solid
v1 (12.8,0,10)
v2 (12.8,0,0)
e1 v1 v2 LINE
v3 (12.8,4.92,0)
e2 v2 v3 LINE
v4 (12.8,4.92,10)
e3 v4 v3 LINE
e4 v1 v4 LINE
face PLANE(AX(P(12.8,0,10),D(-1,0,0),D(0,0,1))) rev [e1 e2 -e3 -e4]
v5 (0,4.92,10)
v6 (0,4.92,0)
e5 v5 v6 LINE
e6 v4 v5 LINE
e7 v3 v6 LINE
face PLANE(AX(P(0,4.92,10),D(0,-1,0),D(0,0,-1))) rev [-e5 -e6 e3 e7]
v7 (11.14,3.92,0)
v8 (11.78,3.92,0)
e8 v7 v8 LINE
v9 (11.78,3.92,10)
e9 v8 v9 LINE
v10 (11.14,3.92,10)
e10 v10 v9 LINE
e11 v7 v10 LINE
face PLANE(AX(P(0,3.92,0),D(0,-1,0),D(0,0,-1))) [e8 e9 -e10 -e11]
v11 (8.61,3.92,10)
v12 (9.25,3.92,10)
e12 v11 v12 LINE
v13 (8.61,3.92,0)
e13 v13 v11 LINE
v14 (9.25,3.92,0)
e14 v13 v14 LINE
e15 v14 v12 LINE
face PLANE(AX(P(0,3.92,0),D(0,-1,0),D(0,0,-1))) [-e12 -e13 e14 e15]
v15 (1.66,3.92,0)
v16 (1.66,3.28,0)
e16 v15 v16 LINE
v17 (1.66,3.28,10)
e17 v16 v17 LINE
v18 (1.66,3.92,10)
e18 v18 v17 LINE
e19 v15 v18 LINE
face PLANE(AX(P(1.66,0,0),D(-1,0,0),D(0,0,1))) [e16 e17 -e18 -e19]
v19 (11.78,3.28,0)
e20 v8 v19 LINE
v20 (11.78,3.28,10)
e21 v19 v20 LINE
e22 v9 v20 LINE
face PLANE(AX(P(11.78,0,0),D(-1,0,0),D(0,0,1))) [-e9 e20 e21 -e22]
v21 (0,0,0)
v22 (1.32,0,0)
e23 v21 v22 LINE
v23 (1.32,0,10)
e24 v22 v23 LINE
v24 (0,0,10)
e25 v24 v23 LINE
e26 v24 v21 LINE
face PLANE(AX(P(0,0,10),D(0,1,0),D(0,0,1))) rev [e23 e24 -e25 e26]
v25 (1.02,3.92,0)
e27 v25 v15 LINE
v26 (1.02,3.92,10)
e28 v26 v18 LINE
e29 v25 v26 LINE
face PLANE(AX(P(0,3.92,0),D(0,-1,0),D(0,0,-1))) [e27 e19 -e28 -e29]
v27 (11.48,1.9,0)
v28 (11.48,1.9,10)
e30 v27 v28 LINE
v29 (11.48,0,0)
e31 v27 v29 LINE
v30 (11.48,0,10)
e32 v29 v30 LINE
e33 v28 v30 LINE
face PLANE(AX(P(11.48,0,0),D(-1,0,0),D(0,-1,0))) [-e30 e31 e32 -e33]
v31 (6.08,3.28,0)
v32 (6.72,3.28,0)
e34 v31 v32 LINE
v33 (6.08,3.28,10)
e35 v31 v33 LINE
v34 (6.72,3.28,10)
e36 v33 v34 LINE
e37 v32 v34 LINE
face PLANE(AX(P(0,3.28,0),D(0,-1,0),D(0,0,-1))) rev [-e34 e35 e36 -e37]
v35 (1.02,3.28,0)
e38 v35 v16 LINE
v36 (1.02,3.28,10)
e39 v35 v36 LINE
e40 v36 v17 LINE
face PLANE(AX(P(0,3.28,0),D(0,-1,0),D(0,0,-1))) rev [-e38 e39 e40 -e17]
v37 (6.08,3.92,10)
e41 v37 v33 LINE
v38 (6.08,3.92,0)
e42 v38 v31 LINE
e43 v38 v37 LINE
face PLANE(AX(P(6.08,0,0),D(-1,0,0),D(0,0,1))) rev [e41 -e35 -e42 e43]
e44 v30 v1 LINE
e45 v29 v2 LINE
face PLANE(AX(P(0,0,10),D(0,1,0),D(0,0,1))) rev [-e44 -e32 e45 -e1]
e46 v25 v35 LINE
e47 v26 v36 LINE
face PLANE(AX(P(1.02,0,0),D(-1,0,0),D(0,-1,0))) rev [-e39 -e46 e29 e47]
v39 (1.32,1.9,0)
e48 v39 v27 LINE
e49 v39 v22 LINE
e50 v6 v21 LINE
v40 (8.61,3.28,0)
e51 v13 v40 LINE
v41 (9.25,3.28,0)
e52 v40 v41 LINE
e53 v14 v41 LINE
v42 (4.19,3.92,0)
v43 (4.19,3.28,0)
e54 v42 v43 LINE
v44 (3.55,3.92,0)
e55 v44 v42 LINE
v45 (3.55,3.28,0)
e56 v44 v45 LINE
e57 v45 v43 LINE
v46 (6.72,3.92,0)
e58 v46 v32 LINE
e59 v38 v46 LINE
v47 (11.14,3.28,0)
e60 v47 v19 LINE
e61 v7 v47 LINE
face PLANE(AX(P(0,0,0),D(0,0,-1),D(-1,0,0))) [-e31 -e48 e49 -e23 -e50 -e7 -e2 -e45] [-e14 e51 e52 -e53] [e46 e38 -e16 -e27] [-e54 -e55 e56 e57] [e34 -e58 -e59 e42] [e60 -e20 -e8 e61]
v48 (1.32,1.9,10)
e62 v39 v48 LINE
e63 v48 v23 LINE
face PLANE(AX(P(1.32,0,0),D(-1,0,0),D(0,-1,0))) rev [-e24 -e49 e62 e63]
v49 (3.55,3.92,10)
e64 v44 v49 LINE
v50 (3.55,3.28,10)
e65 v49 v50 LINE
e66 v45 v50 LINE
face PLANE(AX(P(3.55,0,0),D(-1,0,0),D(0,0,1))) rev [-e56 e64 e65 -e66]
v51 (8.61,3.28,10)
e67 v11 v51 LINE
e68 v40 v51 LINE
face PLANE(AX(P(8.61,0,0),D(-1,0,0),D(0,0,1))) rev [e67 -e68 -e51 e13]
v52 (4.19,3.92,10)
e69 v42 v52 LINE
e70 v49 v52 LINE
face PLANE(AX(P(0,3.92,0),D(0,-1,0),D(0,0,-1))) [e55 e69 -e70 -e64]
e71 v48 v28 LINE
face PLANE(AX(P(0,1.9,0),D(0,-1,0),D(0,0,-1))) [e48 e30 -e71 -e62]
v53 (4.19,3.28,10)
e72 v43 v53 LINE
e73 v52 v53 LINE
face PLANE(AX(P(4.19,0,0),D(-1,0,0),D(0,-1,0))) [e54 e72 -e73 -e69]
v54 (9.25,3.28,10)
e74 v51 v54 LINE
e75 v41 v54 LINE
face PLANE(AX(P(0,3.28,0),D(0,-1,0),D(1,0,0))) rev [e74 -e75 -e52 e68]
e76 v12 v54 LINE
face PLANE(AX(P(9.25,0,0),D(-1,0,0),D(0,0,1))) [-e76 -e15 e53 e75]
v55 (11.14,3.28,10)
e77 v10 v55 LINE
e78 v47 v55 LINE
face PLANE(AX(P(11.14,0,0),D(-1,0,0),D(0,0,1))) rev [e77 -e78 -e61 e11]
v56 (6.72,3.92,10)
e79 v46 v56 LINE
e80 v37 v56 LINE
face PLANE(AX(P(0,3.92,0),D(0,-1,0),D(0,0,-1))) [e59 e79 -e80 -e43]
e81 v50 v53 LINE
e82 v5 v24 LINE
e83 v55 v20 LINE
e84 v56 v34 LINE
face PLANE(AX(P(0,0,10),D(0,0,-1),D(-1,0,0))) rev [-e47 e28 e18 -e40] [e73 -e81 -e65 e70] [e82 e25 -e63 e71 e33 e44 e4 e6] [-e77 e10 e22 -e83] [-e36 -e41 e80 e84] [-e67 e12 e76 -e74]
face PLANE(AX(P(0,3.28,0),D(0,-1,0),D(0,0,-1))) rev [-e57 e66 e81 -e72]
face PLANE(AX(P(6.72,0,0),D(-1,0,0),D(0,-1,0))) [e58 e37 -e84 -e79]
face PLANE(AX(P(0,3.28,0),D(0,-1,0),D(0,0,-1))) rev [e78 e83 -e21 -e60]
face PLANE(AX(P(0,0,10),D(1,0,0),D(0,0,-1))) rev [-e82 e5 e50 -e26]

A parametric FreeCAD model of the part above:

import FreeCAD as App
import Part
import Sketcher


def add_polygon(sketch, points):
    """Adds a closed chain of lines whose ends are joined by coincident constraints."""
    first, n = sketch.GeometryCount, len(points)
    for a, b in zip(points, points[1:] + points[:1]):
        sketch.addGeometry(Part.LineSegment(App.Vector(*a, 0), App.Vector(*b, 0)), False)
    for i in range(n):
        sketch.addConstraint(Sketcher.Constraint("Coincident", first + i, 2, first + (i + 1) % n, 1))

doc = App.newDocument("Part")
body = doc.addObject("PartDesign::Body", "Body")

# Sketch on XY plane
sketch1 = doc.addObject("Sketcher::SketchObject", "Sketch")
body.addObject(sketch1)
sketch1.AttachmentSupport = (doc.XY_Plane, [""])
sketch1.MapMode = "FlatFace"
add_polygon(sketch1, [(0, 4.92), (0, 0), (12.8, 0), (12.8, 4.92)])  # lines 0-3
sketch1.addConstraint(Sketcher.Constraint("Vertical", 0))
sketch1.addConstraint(Sketcher.Constraint("Horizontal", 1))
sketch1.addConstraint(Sketcher.Constraint("Vertical", 2))
sketch1.addConstraint(Sketcher.Constraint("Horizontal", 3))
sketch1.addConstraint(Sketcher.Constraint("Coincident", 0, 2, -1, 1))
sketch1.addConstraint(Sketcher.Constraint("DistanceX", 1, 1, 1, 2, 12.8))
sketch1.addConstraint(Sketcher.Constraint("DistanceY", 0, 2, 0, 1, 4.92))
pad1 = doc.addObject("PartDesign::Pad", "Pad")
body.addObject(pad1)
pad1.Profile = sketch1
pad1.Length = 10

# Sketch on XY plane
sketch2 = doc.addObject("Sketcher::SketchObject", "Sketch001")
body.addObject(sketch2)
sketch2.AttachmentSupport = (doc.XY_Plane, [""])
sketch2.MapMode = "FlatFace"
sketch2.AttachmentOffset = App.Placement(App.Vector(0, 0, 10), App.Rotation())
add_polygon(sketch2, [(1.02, 3.92), (1.02, 3.28), (1.66, 3.28), (1.66, 3.92)])  # lines 0-3
add_polygon(sketch2, [(3.55, 3.92), (3.55, 3.28), (4.19, 3.28), (4.19, 3.92)])  # lines 4-7
add_polygon(sketch2, [(6.08, 3.92), (6.08, 3.28), (6.72, 3.28), (6.72, 3.92)])  # lines 8-11
add_polygon(sketch2, [(8.61, 3.92), (8.61, 3.28), (9.25, 3.28), (9.25, 3.92)])  # lines 12-15
add_polygon(sketch2, [(11.14, 3.92), (11.14, 3.28), (11.78, 3.28), (11.78, 3.92)])  # lines 16-19
add_polygon(sketch2, [(1.32, 1.9), (1.32, 0), (11.48, 0), (11.48, 1.9)])  # lines 20-23
sketch2.addConstraint(Sketcher.Constraint("Vertical", 0))
sketch2.addConstraint(Sketcher.Constraint("Horizontal", 1))
sketch2.addConstraint(Sketcher.Constraint("Vertical", 2))
sketch2.addConstraint(Sketcher.Constraint("Horizontal", 3))
sketch2.addConstraint(Sketcher.Constraint("Vertical", 4))
sketch2.addConstraint(Sketcher.Constraint("Horizontal", 5))
sketch2.addConstraint(Sketcher.Constraint("Vertical", 6))
sketch2.addConstraint(Sketcher.Constraint("Horizontal", 7))
sketch2.addConstraint(Sketcher.Constraint("Vertical", 8))
sketch2.addConstraint(Sketcher.Constraint("Horizontal", 9))
sketch2.addConstraint(Sketcher.Constraint("Vertical", 10))
sketch2.addConstraint(Sketcher.Constraint("Horizontal", 11))
sketch2.addConstraint(Sketcher.Constraint("Vertical", 12))
sketch2.addConstraint(Sketcher.Constraint("Horizontal", 13))
sketch2.addConstraint(Sketcher.Constraint("Vertical", 14))
sketch2.addConstraint(Sketcher.Constraint("Horizontal", 15))
sketch2.addConstraint(Sketcher.Constraint("Vertical", 16))
sketch2.addConstraint(Sketcher.Constraint("Horizontal", 17))
sketch2.addConstraint(Sketcher.Constraint("Vertical", 18))
sketch2.addConstraint(Sketcher.Constraint("Horizontal", 19))
sketch2.addConstraint(Sketcher.Constraint("Vertical", 20))
sketch2.addConstraint(Sketcher.Constraint("Horizontal", 21))
sketch2.addConstraint(Sketcher.Constraint("Vertical", 22))
sketch2.addConstraint(Sketcher.Constraint("Horizontal", 23))
sketch2.addConstraint(Sketcher.Constraint("PointOnObject", 20, 2, -1))
sketch2.addConstraint(Sketcher.Constraint("Horizontal", 1, 2, 4, 2))
sketch2.addConstraint(Sketcher.Constraint("Horizontal", 3, 2, 6, 2))
sketch2.addConstraint(Sketcher.Constraint("Horizontal", 5, 2, 8, 2))
sketch2.addConstraint(Sketcher.Constraint("Horizontal", 7, 2, 10, 2))
sketch2.addConstraint(Sketcher.Constraint("Horizontal", 9, 2, 12, 2))
sketch2.addConstraint(Sketcher.Constraint("Horizontal", 11, 2, 14, 2))
sketch2.addConstraint(Sketcher.Constraint("Horizontal", 13, 2, 16, 2))
sketch2.addConstraint(Sketcher.Constraint("Horizontal", 15, 2, 18, 2))
sketch2.addConstraint(Sketcher.Constraint("Equal", 3, 5))
sketch2.addConstraint(Sketcher.Constraint("Equal", 7, 9))
sketch2.addConstraint(Sketcher.Constraint("Equal", 11, 13))
sketch2.addConstraint(Sketcher.Constraint("Equal", 15, 17))
sketch2.addConstraint(Sketcher.Constraint("Equal", 19, 0))
sketch2.addConstraint(Sketcher.Constraint("DistanceY", 20, 2, 20, 1, 1.9))
sketch2.addConstraint(Sketcher.Constraint("DistanceX", 1, 1, 1, 2, 0.64))
sketch2.addConstraint(Sketcher.Constraint("DistanceX", 21, 1, 21, 2, 10.16))
sketch2.addConstraint(Sketcher.Constraint("DistanceX", 0, 2, 20, 2, 0.3))
sketch2.addConstraint(Sketcher.Constraint("DistanceX", 21, 2, 17, 2, 0.3))
sketch2.addConstraint(Sketcher.Constraint("DistanceX", -1, 1, 0, 2, 1.02))
sketch2.addConstraint(Sketcher.Constraint("DistanceY", -1, 1, 0, 2, 3.28))
sketch2.addConstraint(Sketcher.Constraint("DistanceX", -1, 1, 4, 2, 3.55))
sketch2.addConstraint(Sketcher.Constraint("DistanceX", -1, 1, 8, 2, 6.08))
sketch2.addConstraint(Sketcher.Constraint("DistanceX", -1, 1, 12, 2, 8.61))
pocket1 = doc.addObject("PartDesign::Pocket", "Pocket")
body.addObject(pocket1)
pocket1.Profile = sketch2
pocket1.Type = "ThroughAll"

doc.recompute()
